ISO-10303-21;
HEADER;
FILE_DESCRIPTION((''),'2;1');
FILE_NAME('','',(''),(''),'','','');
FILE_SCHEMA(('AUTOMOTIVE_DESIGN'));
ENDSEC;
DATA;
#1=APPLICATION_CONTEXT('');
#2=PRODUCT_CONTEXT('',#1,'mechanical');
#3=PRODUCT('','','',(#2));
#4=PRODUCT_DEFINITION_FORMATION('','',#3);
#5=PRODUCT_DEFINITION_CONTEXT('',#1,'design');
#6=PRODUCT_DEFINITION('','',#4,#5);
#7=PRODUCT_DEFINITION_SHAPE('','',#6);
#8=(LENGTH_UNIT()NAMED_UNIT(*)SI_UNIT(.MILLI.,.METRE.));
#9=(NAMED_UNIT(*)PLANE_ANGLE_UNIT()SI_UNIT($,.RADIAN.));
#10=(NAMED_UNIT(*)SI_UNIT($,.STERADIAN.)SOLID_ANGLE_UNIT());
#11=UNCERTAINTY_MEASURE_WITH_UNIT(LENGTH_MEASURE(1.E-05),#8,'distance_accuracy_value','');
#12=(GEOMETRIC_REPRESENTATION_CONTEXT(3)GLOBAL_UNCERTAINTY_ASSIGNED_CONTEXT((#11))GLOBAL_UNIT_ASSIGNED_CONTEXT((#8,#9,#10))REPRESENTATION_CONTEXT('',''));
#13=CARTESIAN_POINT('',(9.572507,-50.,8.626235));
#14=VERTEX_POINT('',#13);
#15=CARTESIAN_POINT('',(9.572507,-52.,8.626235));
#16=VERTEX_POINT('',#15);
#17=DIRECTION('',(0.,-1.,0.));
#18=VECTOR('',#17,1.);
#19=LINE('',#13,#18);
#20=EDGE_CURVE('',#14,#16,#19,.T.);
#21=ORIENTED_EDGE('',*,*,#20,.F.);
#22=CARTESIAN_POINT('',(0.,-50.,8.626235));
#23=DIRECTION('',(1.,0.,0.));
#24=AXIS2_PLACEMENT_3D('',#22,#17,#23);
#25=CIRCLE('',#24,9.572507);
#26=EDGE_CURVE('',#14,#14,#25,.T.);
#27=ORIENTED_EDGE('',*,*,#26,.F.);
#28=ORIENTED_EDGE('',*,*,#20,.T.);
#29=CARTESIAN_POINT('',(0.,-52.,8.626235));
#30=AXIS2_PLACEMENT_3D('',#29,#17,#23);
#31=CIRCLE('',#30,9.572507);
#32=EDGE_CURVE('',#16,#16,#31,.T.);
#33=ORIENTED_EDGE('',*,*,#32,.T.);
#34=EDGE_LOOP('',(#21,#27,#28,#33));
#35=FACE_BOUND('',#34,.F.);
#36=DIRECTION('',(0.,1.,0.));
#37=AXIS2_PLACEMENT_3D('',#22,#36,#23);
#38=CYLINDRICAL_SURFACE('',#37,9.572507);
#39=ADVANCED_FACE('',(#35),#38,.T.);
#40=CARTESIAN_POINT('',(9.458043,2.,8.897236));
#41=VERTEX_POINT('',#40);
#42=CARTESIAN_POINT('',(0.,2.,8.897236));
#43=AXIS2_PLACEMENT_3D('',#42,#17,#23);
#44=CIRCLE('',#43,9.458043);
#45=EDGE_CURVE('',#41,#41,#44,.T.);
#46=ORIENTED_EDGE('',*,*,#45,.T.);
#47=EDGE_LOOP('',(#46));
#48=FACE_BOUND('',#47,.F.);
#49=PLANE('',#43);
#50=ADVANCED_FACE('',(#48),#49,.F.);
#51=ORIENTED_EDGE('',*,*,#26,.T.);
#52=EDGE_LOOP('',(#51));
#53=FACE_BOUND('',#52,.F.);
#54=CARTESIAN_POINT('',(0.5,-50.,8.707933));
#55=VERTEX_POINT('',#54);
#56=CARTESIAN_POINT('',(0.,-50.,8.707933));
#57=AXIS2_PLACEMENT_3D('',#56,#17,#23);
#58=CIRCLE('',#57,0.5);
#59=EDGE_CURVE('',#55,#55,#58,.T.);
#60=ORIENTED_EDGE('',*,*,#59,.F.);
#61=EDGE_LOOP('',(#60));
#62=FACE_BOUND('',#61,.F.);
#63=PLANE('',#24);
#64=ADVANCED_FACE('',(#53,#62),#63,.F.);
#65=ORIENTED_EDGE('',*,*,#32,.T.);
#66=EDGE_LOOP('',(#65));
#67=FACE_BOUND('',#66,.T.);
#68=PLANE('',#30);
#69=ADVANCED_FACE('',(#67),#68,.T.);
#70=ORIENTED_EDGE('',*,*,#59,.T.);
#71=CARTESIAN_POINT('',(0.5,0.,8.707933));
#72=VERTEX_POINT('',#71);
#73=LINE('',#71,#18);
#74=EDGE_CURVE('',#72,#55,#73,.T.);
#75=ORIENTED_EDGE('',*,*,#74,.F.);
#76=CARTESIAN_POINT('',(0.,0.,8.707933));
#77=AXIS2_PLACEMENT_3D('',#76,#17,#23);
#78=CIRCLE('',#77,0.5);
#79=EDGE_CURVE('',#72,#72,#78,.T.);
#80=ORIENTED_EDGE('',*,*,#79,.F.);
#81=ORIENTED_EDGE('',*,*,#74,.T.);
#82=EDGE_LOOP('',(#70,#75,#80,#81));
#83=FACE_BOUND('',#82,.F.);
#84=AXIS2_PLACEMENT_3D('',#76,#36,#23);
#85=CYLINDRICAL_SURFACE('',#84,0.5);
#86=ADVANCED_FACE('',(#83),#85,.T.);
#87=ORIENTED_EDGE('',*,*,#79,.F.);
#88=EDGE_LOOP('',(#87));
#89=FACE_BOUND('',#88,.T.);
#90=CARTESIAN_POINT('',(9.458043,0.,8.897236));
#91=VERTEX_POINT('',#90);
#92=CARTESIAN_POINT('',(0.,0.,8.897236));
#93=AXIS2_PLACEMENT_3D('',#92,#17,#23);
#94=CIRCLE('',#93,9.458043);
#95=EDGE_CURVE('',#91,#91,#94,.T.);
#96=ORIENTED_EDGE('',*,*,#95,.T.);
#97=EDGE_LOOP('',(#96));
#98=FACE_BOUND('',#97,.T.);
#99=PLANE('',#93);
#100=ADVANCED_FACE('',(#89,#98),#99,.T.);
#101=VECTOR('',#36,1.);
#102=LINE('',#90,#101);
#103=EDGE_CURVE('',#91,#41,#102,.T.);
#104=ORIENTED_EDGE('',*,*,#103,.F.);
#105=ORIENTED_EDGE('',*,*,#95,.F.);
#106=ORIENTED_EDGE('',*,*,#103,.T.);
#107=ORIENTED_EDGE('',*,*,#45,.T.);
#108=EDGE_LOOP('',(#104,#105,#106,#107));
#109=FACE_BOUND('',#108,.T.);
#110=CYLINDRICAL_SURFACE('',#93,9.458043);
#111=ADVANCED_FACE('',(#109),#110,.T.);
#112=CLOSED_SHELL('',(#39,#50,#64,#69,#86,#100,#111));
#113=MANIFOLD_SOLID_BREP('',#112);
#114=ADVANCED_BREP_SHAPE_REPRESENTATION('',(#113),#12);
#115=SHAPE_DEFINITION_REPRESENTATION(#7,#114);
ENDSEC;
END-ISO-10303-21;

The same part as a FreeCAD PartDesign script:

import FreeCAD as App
import Part
import Sketcher

V = App.Vector
Q = App.Units.Quantity

doc = App.newDocument("Part")
params = doc.addObject("Spreadsheet::Sheet", "Params")
for row, (alias, value) in enumerate([
    ("sketch1_diameter", "1 mm"),
    ("pad1_length", "50 mm"),
    ("pad2_length", "2 mm"),
    ("pad3_length", "2 mm"),
], start=1):
    params.set(f"A{row}", alias)
    params.set(f"B{row}", "=" + value)
    params.setAlias(f"B{row}", alias)

body = doc.addObject("PartDesign::Body", "Body")

# Sketch on XZ plane
sketch1 = doc.addObject("Sketcher::SketchObject", "Sketch")
body.addObject(sketch1)
sketch1.AttachmentSupport = (doc.XZ_Plane, [""])
sketch1.MapMode = "FlatFace"
sketch1.addGeometry(Part.Circle(V(0, 8.707933, 0), V(0, 0, 1), 0.5), False)
sketch1.addConstraint([
    Sketcher.Constraint("PointOnObject", 0, 3, -2),
    Sketcher.Constraint("Diameter", 0, Q("1 mm")),
    Sketcher.Constraint("DistanceY", -1, 1, 0, 3, Q("8.707933 mm")),
])
sketch1.setExpression("Constraints[1]", "Params.sketch1_diameter")
pad1 = doc.addObject("PartDesign::Pad", "Pad")
body.addObject(pad1)
pad1.Profile = sketch1
pad1.setExpression("Length", "Params.pad1_length")

# Sketch on XZ plane
sketch2 = doc.addObject("Sketcher::SketchObject", "Sketch001")
body.addObject(sketch2)
sketch2.AttachmentSupport = (doc.XZ_Plane, [""])
sketch2.MapMode = "FlatFace"
sketch2.addGeometry(Part.Circle(V(0, 8.897236, 0), V(0, 0, 1), 9.458043), False)
sketch2.addConstraint([
    Sketcher.Constraint("PointOnObject", 0, 3, -2),
    Sketcher.Constraint("Diameter", 0, Q("18.916086 mm")),
    Sketcher.Constraint("DistanceY", -1, 1, 0, 3, Q("8.897236 mm")),
])
pad2 = doc.addObject("PartDesign::Pad", "Pad001")
body.addObject(pad2)
pad2.Profile = sketch2
pad2.setExpression("Length", "Params.pad2_length")
pad2.Reversed = True

# Sketch on XZ plane
sketch3 = doc.addObject("Sketcher::SketchObject", "Sketch002")
body.addObject(sketch3)
sketch3.AttachmentSupport = (doc.XZ_Plane, [""])
sketch3.MapMode = "FlatFace"
sketch3.AttachmentOffset = App.Placement(V(0, 0, 50), App.Rotation())
sketch3.addGeometry(Part.Circle(V(0, 8.626235, 0), V(0, 0, 1), 9.572507), False)
sketch3.addConstraint([
    Sketcher.Constraint("PointOnObject", 0, 3, -2),
    Sketcher.Constraint("Diameter", 0, Q("19.145014 mm")),
    Sketcher.Constraint("DistanceY", -1, 1, 0, 3, Q("8.626235 mm")),
])
pad3 = doc.addObject("PartDesign::Pad", "Pad002")
body.addObject(pad3)
pad3.Profile = sketch3
pad3.setExpression("Length", "Params.pad3_length")

doc.recompute()
